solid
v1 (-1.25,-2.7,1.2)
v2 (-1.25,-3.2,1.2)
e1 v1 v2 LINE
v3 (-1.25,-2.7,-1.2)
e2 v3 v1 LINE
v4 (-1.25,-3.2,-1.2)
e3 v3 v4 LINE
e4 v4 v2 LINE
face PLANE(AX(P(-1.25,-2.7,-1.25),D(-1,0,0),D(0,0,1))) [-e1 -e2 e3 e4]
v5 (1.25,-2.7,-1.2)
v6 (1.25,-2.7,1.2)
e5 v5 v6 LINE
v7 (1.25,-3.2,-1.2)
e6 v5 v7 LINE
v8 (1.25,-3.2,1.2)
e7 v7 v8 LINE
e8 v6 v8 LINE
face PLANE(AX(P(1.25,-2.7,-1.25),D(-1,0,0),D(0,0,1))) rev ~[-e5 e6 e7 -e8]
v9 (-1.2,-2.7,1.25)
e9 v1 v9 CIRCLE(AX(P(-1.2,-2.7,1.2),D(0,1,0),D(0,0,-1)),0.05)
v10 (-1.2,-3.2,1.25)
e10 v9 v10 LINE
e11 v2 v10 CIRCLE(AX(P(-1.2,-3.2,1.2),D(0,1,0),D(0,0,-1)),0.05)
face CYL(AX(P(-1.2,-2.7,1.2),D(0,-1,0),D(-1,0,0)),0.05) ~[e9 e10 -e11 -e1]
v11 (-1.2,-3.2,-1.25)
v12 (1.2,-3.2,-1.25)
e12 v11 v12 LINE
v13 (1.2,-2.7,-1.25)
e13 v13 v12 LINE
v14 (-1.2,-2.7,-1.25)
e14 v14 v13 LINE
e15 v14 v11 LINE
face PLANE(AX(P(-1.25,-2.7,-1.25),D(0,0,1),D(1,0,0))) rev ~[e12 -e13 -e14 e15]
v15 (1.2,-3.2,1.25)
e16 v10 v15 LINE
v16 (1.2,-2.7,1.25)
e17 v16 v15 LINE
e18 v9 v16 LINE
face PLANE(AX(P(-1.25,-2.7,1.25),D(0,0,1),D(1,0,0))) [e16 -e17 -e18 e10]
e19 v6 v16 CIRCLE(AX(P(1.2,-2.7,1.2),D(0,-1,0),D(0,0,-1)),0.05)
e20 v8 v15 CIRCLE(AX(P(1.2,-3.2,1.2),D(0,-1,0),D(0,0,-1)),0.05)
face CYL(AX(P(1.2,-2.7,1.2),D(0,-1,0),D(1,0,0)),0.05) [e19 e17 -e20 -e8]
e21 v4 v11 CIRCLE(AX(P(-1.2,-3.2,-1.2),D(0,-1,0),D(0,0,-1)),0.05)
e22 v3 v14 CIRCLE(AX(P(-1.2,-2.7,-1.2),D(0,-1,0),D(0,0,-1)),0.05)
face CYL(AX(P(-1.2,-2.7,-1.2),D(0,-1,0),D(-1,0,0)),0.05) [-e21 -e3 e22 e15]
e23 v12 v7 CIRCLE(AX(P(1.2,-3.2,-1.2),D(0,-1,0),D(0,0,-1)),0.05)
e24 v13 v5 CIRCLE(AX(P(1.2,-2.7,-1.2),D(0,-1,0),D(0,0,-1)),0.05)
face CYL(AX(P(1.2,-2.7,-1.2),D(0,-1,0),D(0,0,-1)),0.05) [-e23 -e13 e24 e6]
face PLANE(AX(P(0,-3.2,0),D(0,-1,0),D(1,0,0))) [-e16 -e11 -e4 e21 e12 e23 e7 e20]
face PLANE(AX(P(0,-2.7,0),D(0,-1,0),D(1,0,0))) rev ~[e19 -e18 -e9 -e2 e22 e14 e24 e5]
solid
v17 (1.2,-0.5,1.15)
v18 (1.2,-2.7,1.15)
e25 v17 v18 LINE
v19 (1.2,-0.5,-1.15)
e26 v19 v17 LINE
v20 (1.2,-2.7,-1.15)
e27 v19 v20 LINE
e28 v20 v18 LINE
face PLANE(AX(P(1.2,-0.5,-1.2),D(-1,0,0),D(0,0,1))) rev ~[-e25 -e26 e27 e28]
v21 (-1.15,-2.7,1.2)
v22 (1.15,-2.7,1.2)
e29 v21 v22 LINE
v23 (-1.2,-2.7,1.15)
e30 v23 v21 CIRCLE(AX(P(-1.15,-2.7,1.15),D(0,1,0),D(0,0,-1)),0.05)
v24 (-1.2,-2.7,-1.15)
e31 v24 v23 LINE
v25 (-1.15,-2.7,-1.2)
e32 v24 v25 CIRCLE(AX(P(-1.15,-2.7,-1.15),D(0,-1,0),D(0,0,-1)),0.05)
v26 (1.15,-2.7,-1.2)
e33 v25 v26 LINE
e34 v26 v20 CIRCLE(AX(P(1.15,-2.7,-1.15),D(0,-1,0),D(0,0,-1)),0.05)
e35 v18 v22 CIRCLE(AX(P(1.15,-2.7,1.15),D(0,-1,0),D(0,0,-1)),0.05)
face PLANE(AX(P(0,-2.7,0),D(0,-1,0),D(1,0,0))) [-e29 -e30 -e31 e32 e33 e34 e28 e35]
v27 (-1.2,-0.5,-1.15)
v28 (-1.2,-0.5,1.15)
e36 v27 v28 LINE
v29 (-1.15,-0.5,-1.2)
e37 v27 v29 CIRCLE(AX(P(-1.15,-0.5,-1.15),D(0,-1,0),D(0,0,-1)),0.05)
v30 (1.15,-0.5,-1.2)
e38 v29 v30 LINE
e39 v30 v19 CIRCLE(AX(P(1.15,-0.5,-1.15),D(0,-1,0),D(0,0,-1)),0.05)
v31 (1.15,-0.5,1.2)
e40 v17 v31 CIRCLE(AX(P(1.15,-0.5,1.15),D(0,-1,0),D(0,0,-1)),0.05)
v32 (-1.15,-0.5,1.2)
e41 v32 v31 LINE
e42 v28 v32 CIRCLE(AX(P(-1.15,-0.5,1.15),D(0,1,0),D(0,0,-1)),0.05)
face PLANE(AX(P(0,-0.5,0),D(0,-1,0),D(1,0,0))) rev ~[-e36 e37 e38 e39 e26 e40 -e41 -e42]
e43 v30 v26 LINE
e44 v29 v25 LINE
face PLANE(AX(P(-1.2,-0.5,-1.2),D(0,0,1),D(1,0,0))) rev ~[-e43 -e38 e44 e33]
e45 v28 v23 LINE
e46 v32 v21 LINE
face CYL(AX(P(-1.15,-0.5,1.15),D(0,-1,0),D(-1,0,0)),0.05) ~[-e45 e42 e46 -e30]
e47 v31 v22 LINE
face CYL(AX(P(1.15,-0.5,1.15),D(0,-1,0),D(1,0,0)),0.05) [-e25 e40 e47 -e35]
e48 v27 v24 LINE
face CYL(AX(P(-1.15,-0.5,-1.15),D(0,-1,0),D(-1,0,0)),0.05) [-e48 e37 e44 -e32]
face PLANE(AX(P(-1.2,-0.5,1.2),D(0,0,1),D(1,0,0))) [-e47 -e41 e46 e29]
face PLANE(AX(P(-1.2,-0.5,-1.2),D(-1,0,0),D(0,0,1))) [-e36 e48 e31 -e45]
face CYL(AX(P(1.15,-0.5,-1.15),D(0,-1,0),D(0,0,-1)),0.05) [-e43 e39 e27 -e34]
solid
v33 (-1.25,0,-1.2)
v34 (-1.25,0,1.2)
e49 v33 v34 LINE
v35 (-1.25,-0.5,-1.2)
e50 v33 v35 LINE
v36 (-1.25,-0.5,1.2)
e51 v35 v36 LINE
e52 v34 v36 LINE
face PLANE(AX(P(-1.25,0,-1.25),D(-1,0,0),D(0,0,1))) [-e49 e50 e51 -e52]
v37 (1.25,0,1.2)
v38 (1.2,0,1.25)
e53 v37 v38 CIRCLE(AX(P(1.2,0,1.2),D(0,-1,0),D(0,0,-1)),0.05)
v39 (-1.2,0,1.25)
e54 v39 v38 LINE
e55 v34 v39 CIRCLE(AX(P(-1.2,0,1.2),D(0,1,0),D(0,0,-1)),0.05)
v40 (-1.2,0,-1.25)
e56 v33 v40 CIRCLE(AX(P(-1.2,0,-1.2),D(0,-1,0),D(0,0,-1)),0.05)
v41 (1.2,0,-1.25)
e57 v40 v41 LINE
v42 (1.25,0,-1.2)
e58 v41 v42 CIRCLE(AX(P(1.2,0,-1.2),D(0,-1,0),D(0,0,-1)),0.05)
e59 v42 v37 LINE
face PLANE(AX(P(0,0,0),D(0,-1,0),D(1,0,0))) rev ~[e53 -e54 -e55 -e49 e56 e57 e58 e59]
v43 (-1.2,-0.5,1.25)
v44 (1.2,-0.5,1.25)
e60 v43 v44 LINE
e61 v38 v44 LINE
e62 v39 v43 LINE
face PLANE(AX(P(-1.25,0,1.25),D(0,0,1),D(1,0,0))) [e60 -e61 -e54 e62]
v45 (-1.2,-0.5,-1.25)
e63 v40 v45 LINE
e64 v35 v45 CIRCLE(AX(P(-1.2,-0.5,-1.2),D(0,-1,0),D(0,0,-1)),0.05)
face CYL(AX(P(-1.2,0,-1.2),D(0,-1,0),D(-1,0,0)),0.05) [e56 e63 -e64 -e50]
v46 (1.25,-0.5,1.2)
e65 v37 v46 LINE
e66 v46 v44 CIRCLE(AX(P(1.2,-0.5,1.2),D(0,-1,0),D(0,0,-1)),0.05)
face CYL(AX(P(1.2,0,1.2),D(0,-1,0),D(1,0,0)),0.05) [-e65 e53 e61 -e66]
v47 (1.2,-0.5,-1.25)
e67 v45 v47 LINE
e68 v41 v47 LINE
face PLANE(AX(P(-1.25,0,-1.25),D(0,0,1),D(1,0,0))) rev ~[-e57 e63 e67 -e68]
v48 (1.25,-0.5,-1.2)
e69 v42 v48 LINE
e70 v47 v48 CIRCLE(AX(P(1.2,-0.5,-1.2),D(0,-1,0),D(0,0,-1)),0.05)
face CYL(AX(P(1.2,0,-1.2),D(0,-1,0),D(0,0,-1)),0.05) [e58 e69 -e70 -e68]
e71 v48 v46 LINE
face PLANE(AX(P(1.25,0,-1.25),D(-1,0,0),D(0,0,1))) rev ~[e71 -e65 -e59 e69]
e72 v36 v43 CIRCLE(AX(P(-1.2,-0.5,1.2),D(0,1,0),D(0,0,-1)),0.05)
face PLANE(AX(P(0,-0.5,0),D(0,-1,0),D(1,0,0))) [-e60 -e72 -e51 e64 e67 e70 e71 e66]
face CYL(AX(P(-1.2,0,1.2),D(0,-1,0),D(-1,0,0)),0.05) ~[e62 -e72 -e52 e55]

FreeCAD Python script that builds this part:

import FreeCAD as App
import Part
import Sketcher


def edges_at(feature, points):
    """Names of the edges that pass closest to the given points."""
    edges = feature.Shape.Edges
    near = lambda p: min(range(len(edges)), key=lambda i: edges[i].distToShape(Part.Vertex(*p))[0])
    return sorted({f"Edge{near(p) + 1}" for p in points})


def add_polygon(sketch, points):
    """Adds a closed chain of lines whose ends are joined by coincident constraints."""
    first, n = sketch.GeometryCount, len(points)
    for a, b in zip(points, points[1:] + points[:1]):
        sketch.addGeometry(Part.LineSegment(App.Vector(*a, 0), App.Vector(*b, 0)), False)
    for i in range(n):
        sketch.addConstraint(Sketcher.Constraint("Coincident", first + i, 2, first + (i + 1) % n, 1))

doc = App.newDocument("Part")
params = doc.addObject("Spreadsheet::Sheet", "Params")
for row, (alias, value) in enumerate([
    ("sketch1_width", "2.5 mm"),
    ("pad1_length", "0.5 mm"),
    ("fillet_radius", "0.05 mm"),
    ("sketch2_width", "2.4 mm"),
    ("pad2_length", "2.2 mm"),
    ("fillet2_radius", "0.05 mm"),
    ("sketch3_width", "2.5 mm"),
    ("pad3_length", "0.5 mm"),
    ("fillet3_radius", "0.05 mm"),
], start=1):
    params.set(f"A{row}", alias)
    params.set(f"B{row}", "=" + value)
    params.setAlias(f"B{row}", alias)

body = doc.addObject("PartDesign::Body", "Body")

# Sketch on XZ plane
sketch1 = doc.addObject("Sketcher::SketchObject", "Sketch")
body.addObject(sketch1)
sketch1.AttachmentSupport = (doc.XZ_Plane, [""])
sketch1.MapMode = "FlatFace"
add_polygon(sketch1, [(-1.2, 1.2), (-1.2, -1.2), (1.2, -1.2), (1.2, 1.2)])  # lines 0-3
sketch1.addConstraint([
    Sketcher.Constraint("Vertical", 0),
    Sketcher.Constraint("Horizontal", 1),
    Sketcher.Constraint("Vertical", 2),
    Sketcher.Constraint("Horizontal", 3),
    Sketcher.Constraint("Symmetric", 0, 2, 2, 2, -1, 1),
    Sketcher.Constraint("Equal", 3, 0),
    Sketcher.Constraint("DistanceX", 1, 1, 1, 2, 2.5),
])
sketch1.setExpression("Constraints[10]", "Params.sketch1_width")
pad1 = doc.addObject("PartDesign::Pad", "Pad")
body.addObject(pad1)
pad1.Profile = sketch1
pad1.setExpression("Length", "Params.pad1_length")
doc.recompute()

fillet = doc.addObject("PartDesign::Fillet", "Fillet")
body.addObject(fillet)
fillet.Base = (pad1, edges_at(pad1, [
    (1.25, -0.25, 1.25),
    (1.25, -0.25, -1.25),
    (-1.25, -0.25, 1.25),
    (-1.25, -0.25, -1.25),
]))
fillet.setExpression("Radius", "Params.fillet_radius")
body2 = doc.addObject("PartDesign::Body", "Body001")

# Sketch on XZ plane
sketch2 = doc.addObject("Sketcher::SketchObject", "Sketch001")
body2.addObject(sketch2)
sketch2.AttachmentSupport = (doc.getObject("XZ_Plane001"), [""])
sketch2.MapMode = "FlatFace"
sketch2.AttachmentOffset = App.Placement(App.Vector(0, 0, 0.5), App.Rotation())
add_polygon(sketch2, [(-1.2, 1.2), (-1.2, -1.2), (1.2, -1.2), (1.2, 1.2)])  # lines 0-3
sketch2.addConstraint([
    Sketcher.Constraint("Vertical", 0),
    Sketcher.Constraint("Horizontal", 1),
    Sketcher.Constraint("Vertical", 2),
    Sketcher.Constraint("Horizontal", 3),
    Sketcher.Constraint("Symmetric", 0, 2, 2, 2, -1, 1),
    Sketcher.Constraint("Equal", 3, 0),
    Sketcher.Constraint("DistanceX", 1, 1, 1, 2, 2.4),
])
sketch2.setExpression("Constraints[10]", "Params.sketch2_width")
pad2 = doc.addObject("PartDesign::Pad", "Pad001")
body2.addObject(pad2)
pad2.Profile = sketch2
pad2.setExpression("Length", "Params.pad2_length")
doc.recompute()

fillet2 = doc.addObject("PartDesign::Fillet", "Fillet001")
body2.addObject(fillet2)
fillet2.Base = (pad2, edges_at(pad2, [
    (1.2, -1.6, 1.2),
    (-1.2, -1.6, 1.2),
    (1.2, -1.6, -1.2),
    (-1.2, -1.6, -1.2),
]))
fillet2.setExpression("Radius", "Params.fillet2_radius")
body3 = doc.addObject("PartDesign::Body", "Body002")

# Sketch on XZ plane
sketch3 = doc.addObject("Sketcher::SketchObject", "Sketch002")
body3.addObject(sketch3)
sketch3.AttachmentSupport = (doc.getObject("XZ_Plane002"), [""])
sketch3.MapMode = "FlatFace"
sketch3.AttachmentOffset = App.Placement(App.Vector(0, 0, 2.7), App.Rotation())
add_polygon(sketch3, [(-1.2, 1.2), (-1.2, -1.2), (1.2, -1.2), (1.2, 1.2)])  # lines 0-3
sketch3.addConstraint([
    Sketcher.Constraint("Vertical", 0),
    Sketcher.Constraint("Horizontal", 1),
    Sketcher.Constraint("Vertical", 2),
    Sketcher.Constraint("Horizontal", 3),
    Sketcher.Constraint("Symmetric", 0, 2, 2, 2, -1, 1),
    Sketcher.Constraint("Equal", 3, 0),
    Sketcher.Constraint("DistanceX", 1, 1, 1, 2, 2.5),
])
sketch3.setExpression("Constraints[10]", "Params.sketch3_width")
pad3 = doc.addObject("PartDesign::Pad", "Pad002")
body3.addObject(pad3)
pad3.Profile = sketch3
pad3.setExpression("Length", "Params.pad3_length")
doc.recompute()

fillet3 = doc.addObject("PartDesign::Fillet", "Fillet002")
body3.addObject(fillet3)
fillet3.Base = (pad3, edges_at(pad3, [
    (1.25, -2.95, 1.25),
    (1.25, -2.95, -1.25),
    (-1.25, -2.95, 1.25),
    (-1.25, -2.95, -1.25),
]))
fillet3.setExpression("Radius", "Params.fillet3_radius")

doc.recompute()
